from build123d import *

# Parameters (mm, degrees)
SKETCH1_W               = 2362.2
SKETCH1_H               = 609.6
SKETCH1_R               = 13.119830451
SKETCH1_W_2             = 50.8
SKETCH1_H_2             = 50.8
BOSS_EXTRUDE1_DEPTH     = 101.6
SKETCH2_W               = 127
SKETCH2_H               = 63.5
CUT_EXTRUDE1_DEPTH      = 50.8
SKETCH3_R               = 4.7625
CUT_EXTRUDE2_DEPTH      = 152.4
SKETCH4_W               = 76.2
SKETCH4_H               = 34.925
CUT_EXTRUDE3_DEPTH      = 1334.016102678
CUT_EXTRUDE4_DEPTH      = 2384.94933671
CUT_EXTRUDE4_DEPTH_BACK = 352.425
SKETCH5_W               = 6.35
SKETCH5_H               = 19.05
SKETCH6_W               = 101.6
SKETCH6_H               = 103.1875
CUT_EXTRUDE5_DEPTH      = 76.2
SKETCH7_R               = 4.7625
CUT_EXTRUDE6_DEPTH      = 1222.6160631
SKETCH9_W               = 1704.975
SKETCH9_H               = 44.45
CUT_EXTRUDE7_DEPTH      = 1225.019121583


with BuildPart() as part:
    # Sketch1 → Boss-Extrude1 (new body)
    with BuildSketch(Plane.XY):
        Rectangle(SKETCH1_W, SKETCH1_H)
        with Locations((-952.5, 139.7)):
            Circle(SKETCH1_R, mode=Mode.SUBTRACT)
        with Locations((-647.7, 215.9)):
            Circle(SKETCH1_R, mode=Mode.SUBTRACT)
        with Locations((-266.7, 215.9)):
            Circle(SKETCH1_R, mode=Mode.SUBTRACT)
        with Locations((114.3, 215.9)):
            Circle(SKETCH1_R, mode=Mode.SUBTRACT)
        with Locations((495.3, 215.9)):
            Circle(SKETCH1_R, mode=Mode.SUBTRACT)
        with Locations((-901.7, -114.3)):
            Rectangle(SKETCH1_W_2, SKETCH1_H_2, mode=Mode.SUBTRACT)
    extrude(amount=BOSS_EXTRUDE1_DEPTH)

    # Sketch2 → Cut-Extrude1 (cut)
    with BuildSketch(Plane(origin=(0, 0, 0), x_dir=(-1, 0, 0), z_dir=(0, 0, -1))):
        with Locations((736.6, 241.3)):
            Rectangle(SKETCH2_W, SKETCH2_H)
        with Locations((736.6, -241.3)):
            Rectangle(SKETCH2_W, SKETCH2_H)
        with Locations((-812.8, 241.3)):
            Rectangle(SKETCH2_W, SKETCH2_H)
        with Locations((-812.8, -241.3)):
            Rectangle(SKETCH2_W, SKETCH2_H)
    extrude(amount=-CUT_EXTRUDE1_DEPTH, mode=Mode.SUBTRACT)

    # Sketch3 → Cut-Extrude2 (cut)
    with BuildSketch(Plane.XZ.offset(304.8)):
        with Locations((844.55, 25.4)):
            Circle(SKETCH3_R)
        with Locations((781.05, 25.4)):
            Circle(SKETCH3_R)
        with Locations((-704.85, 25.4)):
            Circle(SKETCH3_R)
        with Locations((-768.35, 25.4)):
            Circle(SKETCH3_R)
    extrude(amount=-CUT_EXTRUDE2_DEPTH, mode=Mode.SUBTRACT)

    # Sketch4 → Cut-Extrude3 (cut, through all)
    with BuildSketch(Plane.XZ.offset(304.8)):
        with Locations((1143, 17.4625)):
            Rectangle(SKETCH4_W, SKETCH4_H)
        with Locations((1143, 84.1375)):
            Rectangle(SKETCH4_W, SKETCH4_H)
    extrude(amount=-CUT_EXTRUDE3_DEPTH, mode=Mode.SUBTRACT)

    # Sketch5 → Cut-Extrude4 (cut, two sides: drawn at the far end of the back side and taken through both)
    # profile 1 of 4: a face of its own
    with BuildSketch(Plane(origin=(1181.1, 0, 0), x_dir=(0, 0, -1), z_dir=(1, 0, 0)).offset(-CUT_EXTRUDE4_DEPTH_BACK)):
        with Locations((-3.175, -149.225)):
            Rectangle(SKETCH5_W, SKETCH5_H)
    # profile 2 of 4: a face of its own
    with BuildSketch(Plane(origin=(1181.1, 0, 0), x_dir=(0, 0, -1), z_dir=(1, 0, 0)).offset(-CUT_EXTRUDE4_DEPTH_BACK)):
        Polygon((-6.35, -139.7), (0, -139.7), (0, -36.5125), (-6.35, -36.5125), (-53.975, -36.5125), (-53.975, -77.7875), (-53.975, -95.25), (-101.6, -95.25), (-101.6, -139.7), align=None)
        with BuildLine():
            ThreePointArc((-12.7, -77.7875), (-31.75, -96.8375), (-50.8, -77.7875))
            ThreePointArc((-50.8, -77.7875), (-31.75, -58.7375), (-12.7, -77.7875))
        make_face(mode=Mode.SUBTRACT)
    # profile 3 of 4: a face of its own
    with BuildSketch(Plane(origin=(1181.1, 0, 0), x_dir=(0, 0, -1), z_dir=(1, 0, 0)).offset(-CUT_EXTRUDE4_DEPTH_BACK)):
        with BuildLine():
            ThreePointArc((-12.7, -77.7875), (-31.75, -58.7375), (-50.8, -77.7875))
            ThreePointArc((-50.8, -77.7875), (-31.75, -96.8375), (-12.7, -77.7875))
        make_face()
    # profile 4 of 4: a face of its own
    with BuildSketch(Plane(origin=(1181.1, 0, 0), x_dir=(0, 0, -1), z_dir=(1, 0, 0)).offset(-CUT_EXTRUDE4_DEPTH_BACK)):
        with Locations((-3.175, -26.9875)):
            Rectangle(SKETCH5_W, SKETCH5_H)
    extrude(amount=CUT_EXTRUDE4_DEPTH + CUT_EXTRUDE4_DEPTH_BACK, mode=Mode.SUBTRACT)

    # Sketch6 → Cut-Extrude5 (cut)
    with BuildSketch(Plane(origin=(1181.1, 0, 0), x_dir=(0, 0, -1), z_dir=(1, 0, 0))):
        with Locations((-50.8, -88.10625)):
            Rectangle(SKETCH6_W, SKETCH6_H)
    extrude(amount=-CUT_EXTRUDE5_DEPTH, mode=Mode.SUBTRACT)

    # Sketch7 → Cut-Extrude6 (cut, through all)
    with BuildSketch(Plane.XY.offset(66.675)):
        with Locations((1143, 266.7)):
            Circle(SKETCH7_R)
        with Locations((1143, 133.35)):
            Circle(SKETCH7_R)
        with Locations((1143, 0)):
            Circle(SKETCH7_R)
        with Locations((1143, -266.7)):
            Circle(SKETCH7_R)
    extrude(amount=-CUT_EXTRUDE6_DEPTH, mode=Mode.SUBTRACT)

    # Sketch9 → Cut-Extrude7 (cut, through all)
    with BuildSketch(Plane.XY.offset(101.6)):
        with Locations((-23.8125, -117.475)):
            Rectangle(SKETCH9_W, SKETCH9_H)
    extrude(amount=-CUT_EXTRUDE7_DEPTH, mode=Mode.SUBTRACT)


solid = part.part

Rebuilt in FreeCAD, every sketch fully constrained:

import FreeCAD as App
import Part
import Sketcher

V = App.Vector
Q = App.Units.Quantity


def add_polygon(sketch, points):
    """Adds a closed chain of lines whose ends are joined by coincident constraints."""
    first, n = sketch.GeometryCount, len(points)
    for a, b in zip(points, points[1:] + points[:1]):
        sketch.addGeometry(Part.LineSegment(App.Vector(*a, 0), App.Vector(*b, 0)), False)
    for i in range(n):
        sketch.addConstraint(Sketcher.Constraint("Coincident", first + i, 2, first + (i + 1) % n, 1))

doc = App.newDocument("Part")
params = doc.addObject("Spreadsheet::Sheet", "Params")
for row, (alias, value) in enumerate([
    ("sketch1_width", "93 in"),
    ("sketch1_width2", "2 in"),
    ("sketch1_height", "24 in"),
    ("pad1_length", "4 in"),
    ("sketch2_width", "5 in"),
    ("sketch2_height", "2.5 in"),
    ("pocket1_length", "2 in"),
    ("sketch3_diameter", "0.375 in"),
    ("pocket2_length", "6 in"),
    ("sketch4_width", "3 in"),
    ("sketch4_height", "1.375 in"),
    ("sketch5_width", "0.75 in"),
    ("sketch5_width2", "1.75 in"),
    ("sketch5_height", "0.25 in"),
    ("sketch5_width3", "5.5625 in"),
    ("pocket4_length", "2384.949337 mm"),
    ("pocket4_length2", "13.875 in"),
    ("sketch6_height", "4 in"),
    ("sketch6_width", "4.0625 in"),
    ("pocket5_length", "3 in"),
    ("sketch7_diameter", "0.375 in"),
    ("sketch8_height", "1.75 in"),
    ("sketch8_width", "67.125 in"),
], start=1):
    params.set(f"A{row}", alias)
    params.set(f"B{row}", "=" + value)
    params.setAlias(f"B{row}", alias)

body = doc.addObject("PartDesign::Body", "Body")

# Sketch on XY plane
sketch1 = body.newObject("Sketcher::SketchObject", "Sketch")
sketch1.AttachmentSupport = (doc.getObject("XY_Plane"), [""])
sketch1.MapMode = "FlatFace"
add_polygon(sketch1, [(-1181.1, 304.8), (-1181.1, -304.8), (1181.1, -304.8), (1181.1, 304.8)])  # lines 0-3
add_polygon(sketch1, [(-876.3, -139.7), (-927.1, -139.7), (-927.1, -88.9), (-876.3, -88.9)])  # lines 4-7
sketch1.addGeometry(Part.Circle(V(-952.5, 139.7, 0), V(0, 0, 1), 13.11983), False)  # 8
sketch1.addGeometry(Part.Circle(V(-647.7, 215.9, 0), V(0, 0, 1), 13.11983), False)  # 9
sketch1.addGeometry(Part.Circle(V(-266.7, 215.9, 0), V(0, 0, 1), 13.11983), False)  # 10
sketch1.addGeometry(Part.Circle(V(114.3, 215.9, 0), V(0, 0, 1), 13.11983), False)  # 11
sketch1.addGeometry(Part.Circle(V(495.3, 215.9, 0), V(0, 0, 1), 13.11983), False)  # 12
sketch1.addConstraint(Sketcher.Constraint("Vertical", 0))
sketch1.addConstraint(Sketcher.Constraint("Horizontal", 1))
sketch1.addConstraint(Sketcher.Constraint("Vertical", 2))
sketch1.addConstraint(Sketcher.Constraint("Horizontal", 3))
sketch1.addConstraint(Sketcher.Constraint("Horizontal", 4))
sketch1.addConstraint(Sketcher.Constraint("Vertical", 5))
sketch1.addConstraint(Sketcher.Constraint("Horizontal", 6))
sketch1.addConstraint(Sketcher.Constraint("Vertical", 7))
sketch1.addConstraint(Sketcher.Constraint("Equal", 8, 9))
sketch1.addConstraint(Sketcher.Constraint("Equal", 9, 10))
sketch1.addConstraint(Sketcher.Constraint("Equal", 10, 11))
sketch1.addConstraint(Sketcher.Constraint("Equal", 11, 12))
sketch1.addConstraint(Sketcher.Constraint("Symmetric", 0, 2, 2, 2, -1, 1))
sketch1.addConstraint(Sketcher.Constraint("Horizontal", 9, 3, 10, 3))
sketch1.addConstraint(Sketcher.Constraint("Horizontal", 10, 3, 11, 3))
sketch1.addConstraint(Sketcher.Constraint("Horizontal", 11, 3, 12, 3))
sketch1.addConstraint(Sketcher.Constraint("Equal", 6, 5))
sketch1.addConstraint(Sketcher.Constraint("DistanceX", 1, 1, 1, 2, Q("93 in")))
sketch1.addConstraint(Sketcher.Constraint("DistanceX", 4, 2, 4, 1, Q("2 in")))
sketch1.addConstraint(Sketcher.Constraint("DistanceY", 0, 2, 0, 1, Q("24 in")))
sketch1.addConstraint(Sketcher.Constraint("DistanceX", 8, 3, 9, 3, Q("12 in")))
sketch1.addConstraint(Sketcher.Constraint("DistanceY", 8, 3, 9, 3, Q("3 in")))
sketch1.addConstraint(Sketcher.Constraint("DistanceX", 9, 3, 10, 3, Q("15 in")))
sketch1.addConstraint(Sketcher.Constraint("DistanceX", 10, 3, 11, 3, Q("15 in")))
sketch1.addConstraint(Sketcher.Constraint("DistanceX", 11, 3, 12, 3, Q("15 in")))
sketch1.addConstraint(Sketcher.Constraint("DistanceX", 0, 2, 8, 3, Q("9 in")))
sketch1.addConstraint(Sketcher.Constraint("DistanceX", 8, 3, 4, 2, Q("1 in")))
sketch1.addConstraint(Sketcher.Constraint("DistanceY", 4, 2, 8, 3, Q("11 in")))
sketch1.addConstraint(Sketcher.Constraint("DistanceY", -1, 1, 8, 3, Q("5.5 in")))
sketch1.addConstraint(Sketcher.Constraint("Diameter", 8, 26.239661))
sketch1.setExpression("Constraints[25]", "Params.sketch1_width")
sketch1.setExpression("Constraints[26]", "Params.sketch1_width2")
sketch1.setExpression("Constraints[27]", "Params.sketch1_height")
pad1 = body.newObject("PartDesign::Pad", "Pad")
pad1.Profile = sketch1
pad1.setExpression("Length", "Params.pad1_length")

# Sketch on XY plane
sketch2 = body.newObject("Sketcher::SketchObject", "Sketch001")
sketch2.AttachmentSupport = (doc.getObject("XY_Plane"), [""])
sketch2.MapMode = "FlatFace"
add_polygon(sketch2, [(-673.1, 273.05), (-673.1, 209.55), (-800.1, 209.55), (-800.1, 273.05)])  # lines 0-3
add_polygon(sketch2, [(-673.1, -209.55), (-673.1, -273.05), (-800.1, -273.05), (-800.1, -209.55)])  # lines 4-7
add_polygon(sketch2, [(876.3, 273.05), (876.3, 209.55), (749.3, 209.55), (749.3, 273.05)])  # lines 8-11
add_polygon(sketch2, [(876.3, -209.55), (876.3, -273.05), (749.3, -273.05), (749.3, -209.55)])  # lines 12-15
sketch2.addConstraint(Sketcher.Constraint("Vertical", 0))
sketch2.addConstraint(Sketcher.Constraint("Horizontal", 1))
sketch2.addConstraint(Sketcher.Constraint("Vertical", 2))
sketch2.addConstraint(Sketcher.Constraint("Horizontal", 3))
sketch2.addConstraint(Sketcher.Constraint("Vertical", 4))
sketch2.addConstraint(Sketcher.Constraint("Horizontal", 5))
sketch2.addConstraint(Sketcher.Constraint("Vertical", 6))
sketch2.addConstraint(Sketcher.Constraint("Horizontal", 7))
sketch2.addConstraint(Sketcher.Constraint("Vertical", 8))
sketch2.addConstraint(Sketcher.Constraint("Horizontal", 9))
sketch2.addConstraint(Sketcher.Constraint("Vertical", 10))
sketch2.addConstraint(Sketcher.Constraint("Horizontal", 11))
sketch2.addConstraint(Sketcher.Constraint("Vertical", 12))
sketch2.addConstraint(Sketcher.Constraint("Horizontal", 13))
sketch2.addConstraint(Sketcher.Constraint("Vertical", 14))
sketch2.addConstraint(Sketcher.Constraint("Horizontal", 15))
sketch2.addConstraint(Sketcher.Constraint("Symmetric", 3, 2, 4, 2, -1))
sketch2.addConstraint(Sketcher.Constraint("Symmetric", 1, 2, 6, 2, -1))
sketch2.addConstraint(Sketcher.Constraint("Symmetric", 11, 2, 12, 2, -1))
sketch2.addConstraint(Sketcher.Constraint("Symmetric", 9, 2, 14, 2, -1))
sketch2.addConstraint(Sketcher.Constraint("Horizontal", 1, 2, 8, 2))
sketch2.addConstraint(Sketcher.Constraint("Horizontal", 3, 2, 10, 2))
sketch2.addConstraint(Sketcher.Constraint("Equal", 7, 9))
sketch2.addConstraint(Sketcher.Constraint("DistanceX", 1, 2, 1, 1, Q("5 in")))
sketch2.addConstraint(Sketcher.Constraint("DistanceY", 0, 2, 0, 1, Q("2.5 in")))
sketch2.addConstraint(Sketcher.Constraint("DistanceY", 4, 2, 0, 2, Q("19 in")))
sketch2.addConstraint(Sketcher.Constraint("DistanceX", 0, 2, 8, 2, Q("61 in")))
sketch2.addConstraint(Sketcher.Constraint("DistanceX", 0, 2, -1, 1, Q("26.5 in")))
sketch2.setExpression("Constraints[39]", "Params.sketch2_width")
sketch2.setExpression("Constraints[40]", "Params.sketch2_height")
pocket1 = body.newObject("PartDesign::Pocket", "Pocket")
pocket1.Profile = sketch2
pocket1.setExpression("Length", "Params.pocket1_length")
pocket1.Reversed = True

# Sketch on XZ plane
sketch3 = body.newObject("Sketcher::SketchObject", "Sketch002")
sketch3.AttachmentSupport = (doc.getObject("XZ_Plane"), [""])
sketch3.MapMode = "FlatFace"
sketch3.AttachmentOffset = App.Placement(V(0, 0, 12 * 25.4), App.Rotation())
sketch3.addGeometry(Part.Circle(V(844.55, 25.4, 0), V(0, 0, 1), 4.7625), False)
sketch3.addGeometry(Part.Circle(V(781.05, 25.4, 0), V(0, 0, 1), 4.7625), False)
sketch3.addGeometry(Part.Circle(V(-704.85, 25.4, 0), V(0, 0, 1), 4.7625), False)
sketch3.addGeometry(Part.Circle(V(-768.35, 25.4, 0), V(0, 0, 1), 4.7625), False)
sketch3.addConstraint(Sketcher.Constraint("Equal", 0, 1))
sketch3.addConstraint(Sketcher.Constraint("Equal", 1, 2))
sketch3.addConstraint(Sketcher.Constraint("Equal", 2, 3))
sketch3.addConstraint(Sketcher.Constraint("Horizontal", 0, 3, 1, 3))
sketch3.addConstraint(Sketcher.Constraint("Horizontal", 1, 3, 2, 3))
sketch3.addConstraint(Sketcher.Constraint("Horizontal", 2, 3, 3, 3))
sketch3.addConstraint(Sketcher.Constraint("Diameter", 0, Q("0.375 in")))
sketch3.addConstraint(Sketcher.Constraint("DistanceY", -1, 1, 0, 3, Q("1 in")))
sketch3.addConstraint(Sketcher.Constraint("DistanceX", 2, 3, 0, 3, Q("61 in")))
sketch3.addConstraint(Sketcher.Constraint("DistanceX", 3, 3, 1, 3, Q("61 in")))
sketch3.addConstraint(Sketcher.Constraint("DistanceX", 1, 3, 0, 3, Q("2.5 in")))
sketch3.addConstraint(Sketcher.Constraint("DistanceX", -1, 1, 0, 3, Q("33.25 in")))
sketch3.setExpression("Constraints[6]", "Params.sketch3_diameter")
pocket2 = body.newObject("PartDesign::Pocket", "Pocket001")
pocket2.Profile = sketch3
pocket2.setExpression("Length", "Params.pocket2_length")

# Sketch on XZ plane
sketch4 = body.newObject("Sketcher::SketchObject", "Sketch003")
sketch4.AttachmentSupport = (doc.getObject("XZ_Plane"), [""])
sketch4.MapMode = "FlatFace"
sketch4.AttachmentOffset = App.Placement(V(0, 0, 12 * 25.4), App.Rotation())
add_polygon(sketch4, [(1104.9, 34.925), (1104.9, 0), (1181.1, 0), (1181.1, 34.925)])  # lines 0-3
add_polygon(sketch4, [(1104.9, 101.6), (1104.9, 66.675), (1181.1, 66.675), (1181.1, 101.6)])  # lines 4-7
sketch4.addConstraint(Sketcher.Constraint("Vertical", 0))
sketch4.addConstraint(Sketcher.Constraint("Horizontal", 1))
sketch4.addConstraint(Sketcher.Constraint("Vertical", 2))
sketch4.addConstraint(Sketcher.Constraint("Horizontal", 3))
sketch4.addConstraint(Sketcher.Constraint("Vertical", 4))
sketch4.addConstraint(Sketcher.Constraint("Horizontal", 5))
sketch4.addConstraint(Sketcher.Constraint("Vertical", 6))
sketch4.addConstraint(Sketcher.Constraint("Horizontal", 7))
sketch4.addConstraint(Sketcher.Constraint("PointOnObject", 0, 2, -1))
sketch4.addConstraint(Sketcher.Constraint("Vertical", 3, 2, 4, 2))
sketch4.addConstraint(Sketcher.Constraint("Vertical", 2, 2, 5, 2))
sketch4.addConstraint(Sketcher.Constraint("Equal", 2, 4))
sketch4.addConstraint(Sketcher.Constraint("DistanceX", 1, 1, 1, 2, Q("3 in")))
sketch4.addConstraint(Sketcher.Constraint("DistanceY", -1, 1, 6, 2, Q("4 in")))
sketch4.addConstraint(Sketcher.Constraint("DistanceX", -1, 1, 0, 2, Q("43.5 in")))
sketch4.addConstraint(Sketcher.Constraint("DistanceY", 0, 2, 0, 1, Q("1.375 in")))
sketch4.setExpression("Constraints[20]", "Params.sketch4_width")
sketch4.setExpression("Constraints[23]", "Params.sketch4_height")
pocket3 = body.newObject("PartDesign::Pocket", "Pocket002")
pocket3.Profile = sketch4
pocket3.Type = "ThroughAll"

# Sketch on YZ plane
sketch5 = body.newObject("Sketcher::SketchObject", "Sketch004")
sketch5.AttachmentSupport = (doc.getObject("YZ_Plane"), [""])
sketch5.MapMode = "FlatFace"
sketch5.AttachmentOffset = App.Placement(V(0, 0, 46.5 * 25.4), App.Rotation())
add_polygon(sketch5, [(-139.7, 6.35), (-158.75, 6.35), (-158.75, 0), (-17.4625, 0), (-17.4625, 6.35), (-36.5125, 6.35), (-36.5125, 53.975), (-95.25, 53.975), (-95.25, 101.6), (-139.7, 101.6)])  # lines 0-9
sketch5.addConstraint(Sketcher.Constraint("Horizontal", 0))
sketch5.addConstraint(Sketcher.Constraint("Vertical", 1))
sketch5.addConstraint(Sketcher.Constraint("Horizontal", 2))
sketch5.addConstraint(Sketcher.Constraint("Vertical", 3))
sketch5.addConstraint(Sketcher.Constraint("Horizontal", 4))
sketch5.addConstraint(Sketcher.Constraint("Vertical", 5))
sketch5.addConstraint(Sketcher.Constraint("Horizontal", 6))
sketch5.addConstraint(Sketcher.Constraint("Vertical", 7))
sketch5.addConstraint(Sketcher.Constraint("Horizontal", 8))
sketch5.addConstraint(Sketcher.Constraint("Vertical", 9))
sketch5.addConstraint(Sketcher.Constraint("PointOnObject", 1, 2, -1))
sketch5.addConstraint(Sketcher.Constraint("Horizontal", 0, 2, 3, 2))
sketch5.addConstraint(Sketcher.Constraint("Equal", 0, 4))
sketch5.addConstraint(Sketcher.Constraint("Equal", 5, 7))
sketch5.addConstraint(Sketcher.Constraint("DistanceY", -1, 1, 7, 2, Q("4 in")))
sketch5.addConstraint(Sketcher.Constraint("DistanceX", 0, 2, 0, 1, Q("0.75 in")))
sketch5.addConstraint(Sketcher.Constraint("DistanceX", 8, 2, 8, 1, Q("1.75 in")))
sketch5.addConstraint(Sketcher.Constraint("DistanceY", 1, 2, 1, 1, Q("0.25 in")))
sketch5.addConstraint(Sketcher.Constraint("DistanceX", 8, 2, -1, 1, Q("5.5 in")))
sketch5.addConstraint(Sketcher.Constraint("DistanceX", 2, 1, 2, 2, Q("5.5625 in")))
sketch5.setExpression("Constraints[25]", "Params.sketch5_width")
sketch5.setExpression("Constraints[26]", "Params.sketch5_width2")
sketch5.setExpression("Constraints[27]", "Params.sketch5_height")
sketch5.setExpression("Constraints[29]", "Params.sketch5_width3")
pocket4 = body.newObject("PartDesign::Pocket", "Pocket003")
pocket4.Profile = sketch5
pocket4.Type = "TwoLengths"
pocket4.setExpression("Length", "Params.pocket4_length")
pocket4.setExpression("Length2", "Params.pocket4_length2")
pocket4.Reversed = True

# Sketch on YZ plane
sketch6 = body.newObject("Sketcher::SketchObject", "Sketch005")
sketch6.AttachmentSupport = (doc.getObject("YZ_Plane"), [""])
sketch6.MapMode = "FlatFace"
sketch6.AttachmentOffset = App.Placement(V(0, 0, 46.5 * 25.4), App.Rotation())
add_polygon(sketch6, [(-36.5125, 101.6), (-139.7, 101.6), (-139.7, 0), (-36.5125, 0)])  # lines 0-3
sketch6.addConstraint(Sketcher.Constraint("Horizontal", 0))
sketch6.addConstraint(Sketcher.Constraint("Vertical", 1))
sketch6.addConstraint(Sketcher.Constraint("Horizontal", 2))
sketch6.addConstraint(Sketcher.Constraint("Vertical", 3))
sketch6.addConstraint(Sketcher.Constraint("PointOnObject", 1, 2, -1))
sketch6.addConstraint(Sketcher.Constraint("DistanceY", 1, 2, 1, 1, Q("4 in")))
sketch6.addConstraint(Sketcher.Constraint("DistanceX", 0, 2, -1, 1, Q("5.5 in")))
sketch6.addConstraint(Sketcher.Constraint("DistanceX", 0, 2, 0, 1, Q("4.0625 in")))
sketch6.setExpression("Constraints[9]", "Params.sketch6_height")
sketch6.setExpression("Constraints[11]", "Params.sketch6_width")
pocket5 = body.newObject("PartDesign::Pocket", "Pocket004")
pocket5.Profile = sketch6
pocket5.setExpression("Length", "Params.pocket5_length")

# Sketch on XY plane
sketch7 = body.newObject("Sketcher::SketchObject", "Sketch006")
sketch7.AttachmentSupport = (doc.getObject("XY_Plane"), [""])
sketch7.MapMode = "FlatFace"
sketch7.AttachmentOffset = App.Placement(V(0, 0, 2.625 * 25.4), App.Rotation())
sketch7.addGeometry(Part.Circle(V(1143, 266.7, 0), V(0, 0, 1), 4.7625), False)
sketch7.addGeometry(Part.Circle(V(1143, 133.35, 0), V(0, 0, 1), 4.7625), False)
sketch7.addGeometry(Part.Circle(V(1143, 0, 0), V(0, 0, 1), 4.7625), False)
sketch7.addGeometry(Part.Circle(V(1143, -266.7, 0), V(0, 0, 1), 4.7625), False)
sketch7.addConstraint(Sketcher.Constraint("Equal", 0, 1))
sketch7.addConstraint(Sketcher.Constraint("Equal", 1, 2))
sketch7.addConstraint(Sketcher.Constraint("Equal", 2, 3))
sketch7.addConstraint(Sketcher.Constraint("Symmetric", 0, 3, 3, 3, -1))
sketch7.addConstraint(Sketcher.Constraint("PointOnObject", 2, 3, -1))
sketch7.addConstraint(Sketcher.Constraint("Vertical", 0, 3, 1, 3))
sketch7.addConstraint(Sketcher.Constraint("Vertical", 1, 3, 2, 3))
sketch7.addConstraint(Sketcher.Constraint("Diameter", 0, Q("0.375 in")))
sketch7.addConstraint(Sketcher.Constraint("DistanceX", -1, 1, 0, 3, Q("45 in")))
sketch7.addConstraint(Sketcher.Constraint("DistanceY", 3, 3, 0, 3, Q("21 in")))
sketch7.addConstraint(Sketcher.Constraint("DistanceY", -1, 1, 1, 3, Q("5.25 in")))
sketch7.setExpression("Constraints[7]", "Params.sketch7_diameter")
pocket6 = body.newObject("PartDesign::Pocket", "Pocket005")
pocket6.Profile = sketch7
pocket6.Type = "ThroughAll"

# Sketch on XY plane
sketch8 = body.newObject("Sketcher::SketchObject", "Sketch007")
sketch8.AttachmentSupport = (doc.getObject("XY_Plane"), [""])
sketch8.MapMode = "FlatFace"
sketch8.AttachmentOffset = App.Placement(V(0, 0, 4 * 25.4), App.Rotation())
add_polygon(sketch8, [(-876.3, -95.25), (-876.3, -139.7), (828.675, -139.7), (828.675, -95.25)])  # lines 0-3
sketch8.addConstraint(Sketcher.Constraint("Vertical", 0))
sketch8.addConstraint(Sketcher.Constraint("Horizontal", 1))
sketch8.addConstraint(Sketcher.Constraint("Vertical", 2))
sketch8.addConstraint(Sketcher.Constraint("Horizontal", 3))
sketch8.addConstraint(Sketcher.Constraint("DistanceY", 0, 2, 0, 1, Q("1.75 in")))
sketch8.addConstraint(Sketcher.Constraint("DistanceX", 0, 2, -1, 1, Q("34.5 in")))
sketch8.addConstraint(Sketcher.Constraint("DistanceY", 0, 2, -1, 1, Q("5.5 in")))
sketch8.addConstraint(Sketcher.Constraint("DistanceX", 1, 1, 1, 2, Q("67.125 in")))
sketch8.setExpression("Constraints[8]", "Params.sketch8_height")
sketch8.setExpression("Constraints[11]", "Params.sketch8_width")
pocket7 = body.newObject("PartDesign::Pocket", "Pocket006")
pocket7.Profile = sketch8
pocket7.Type = "ThroughAll"

doc.recompute()
